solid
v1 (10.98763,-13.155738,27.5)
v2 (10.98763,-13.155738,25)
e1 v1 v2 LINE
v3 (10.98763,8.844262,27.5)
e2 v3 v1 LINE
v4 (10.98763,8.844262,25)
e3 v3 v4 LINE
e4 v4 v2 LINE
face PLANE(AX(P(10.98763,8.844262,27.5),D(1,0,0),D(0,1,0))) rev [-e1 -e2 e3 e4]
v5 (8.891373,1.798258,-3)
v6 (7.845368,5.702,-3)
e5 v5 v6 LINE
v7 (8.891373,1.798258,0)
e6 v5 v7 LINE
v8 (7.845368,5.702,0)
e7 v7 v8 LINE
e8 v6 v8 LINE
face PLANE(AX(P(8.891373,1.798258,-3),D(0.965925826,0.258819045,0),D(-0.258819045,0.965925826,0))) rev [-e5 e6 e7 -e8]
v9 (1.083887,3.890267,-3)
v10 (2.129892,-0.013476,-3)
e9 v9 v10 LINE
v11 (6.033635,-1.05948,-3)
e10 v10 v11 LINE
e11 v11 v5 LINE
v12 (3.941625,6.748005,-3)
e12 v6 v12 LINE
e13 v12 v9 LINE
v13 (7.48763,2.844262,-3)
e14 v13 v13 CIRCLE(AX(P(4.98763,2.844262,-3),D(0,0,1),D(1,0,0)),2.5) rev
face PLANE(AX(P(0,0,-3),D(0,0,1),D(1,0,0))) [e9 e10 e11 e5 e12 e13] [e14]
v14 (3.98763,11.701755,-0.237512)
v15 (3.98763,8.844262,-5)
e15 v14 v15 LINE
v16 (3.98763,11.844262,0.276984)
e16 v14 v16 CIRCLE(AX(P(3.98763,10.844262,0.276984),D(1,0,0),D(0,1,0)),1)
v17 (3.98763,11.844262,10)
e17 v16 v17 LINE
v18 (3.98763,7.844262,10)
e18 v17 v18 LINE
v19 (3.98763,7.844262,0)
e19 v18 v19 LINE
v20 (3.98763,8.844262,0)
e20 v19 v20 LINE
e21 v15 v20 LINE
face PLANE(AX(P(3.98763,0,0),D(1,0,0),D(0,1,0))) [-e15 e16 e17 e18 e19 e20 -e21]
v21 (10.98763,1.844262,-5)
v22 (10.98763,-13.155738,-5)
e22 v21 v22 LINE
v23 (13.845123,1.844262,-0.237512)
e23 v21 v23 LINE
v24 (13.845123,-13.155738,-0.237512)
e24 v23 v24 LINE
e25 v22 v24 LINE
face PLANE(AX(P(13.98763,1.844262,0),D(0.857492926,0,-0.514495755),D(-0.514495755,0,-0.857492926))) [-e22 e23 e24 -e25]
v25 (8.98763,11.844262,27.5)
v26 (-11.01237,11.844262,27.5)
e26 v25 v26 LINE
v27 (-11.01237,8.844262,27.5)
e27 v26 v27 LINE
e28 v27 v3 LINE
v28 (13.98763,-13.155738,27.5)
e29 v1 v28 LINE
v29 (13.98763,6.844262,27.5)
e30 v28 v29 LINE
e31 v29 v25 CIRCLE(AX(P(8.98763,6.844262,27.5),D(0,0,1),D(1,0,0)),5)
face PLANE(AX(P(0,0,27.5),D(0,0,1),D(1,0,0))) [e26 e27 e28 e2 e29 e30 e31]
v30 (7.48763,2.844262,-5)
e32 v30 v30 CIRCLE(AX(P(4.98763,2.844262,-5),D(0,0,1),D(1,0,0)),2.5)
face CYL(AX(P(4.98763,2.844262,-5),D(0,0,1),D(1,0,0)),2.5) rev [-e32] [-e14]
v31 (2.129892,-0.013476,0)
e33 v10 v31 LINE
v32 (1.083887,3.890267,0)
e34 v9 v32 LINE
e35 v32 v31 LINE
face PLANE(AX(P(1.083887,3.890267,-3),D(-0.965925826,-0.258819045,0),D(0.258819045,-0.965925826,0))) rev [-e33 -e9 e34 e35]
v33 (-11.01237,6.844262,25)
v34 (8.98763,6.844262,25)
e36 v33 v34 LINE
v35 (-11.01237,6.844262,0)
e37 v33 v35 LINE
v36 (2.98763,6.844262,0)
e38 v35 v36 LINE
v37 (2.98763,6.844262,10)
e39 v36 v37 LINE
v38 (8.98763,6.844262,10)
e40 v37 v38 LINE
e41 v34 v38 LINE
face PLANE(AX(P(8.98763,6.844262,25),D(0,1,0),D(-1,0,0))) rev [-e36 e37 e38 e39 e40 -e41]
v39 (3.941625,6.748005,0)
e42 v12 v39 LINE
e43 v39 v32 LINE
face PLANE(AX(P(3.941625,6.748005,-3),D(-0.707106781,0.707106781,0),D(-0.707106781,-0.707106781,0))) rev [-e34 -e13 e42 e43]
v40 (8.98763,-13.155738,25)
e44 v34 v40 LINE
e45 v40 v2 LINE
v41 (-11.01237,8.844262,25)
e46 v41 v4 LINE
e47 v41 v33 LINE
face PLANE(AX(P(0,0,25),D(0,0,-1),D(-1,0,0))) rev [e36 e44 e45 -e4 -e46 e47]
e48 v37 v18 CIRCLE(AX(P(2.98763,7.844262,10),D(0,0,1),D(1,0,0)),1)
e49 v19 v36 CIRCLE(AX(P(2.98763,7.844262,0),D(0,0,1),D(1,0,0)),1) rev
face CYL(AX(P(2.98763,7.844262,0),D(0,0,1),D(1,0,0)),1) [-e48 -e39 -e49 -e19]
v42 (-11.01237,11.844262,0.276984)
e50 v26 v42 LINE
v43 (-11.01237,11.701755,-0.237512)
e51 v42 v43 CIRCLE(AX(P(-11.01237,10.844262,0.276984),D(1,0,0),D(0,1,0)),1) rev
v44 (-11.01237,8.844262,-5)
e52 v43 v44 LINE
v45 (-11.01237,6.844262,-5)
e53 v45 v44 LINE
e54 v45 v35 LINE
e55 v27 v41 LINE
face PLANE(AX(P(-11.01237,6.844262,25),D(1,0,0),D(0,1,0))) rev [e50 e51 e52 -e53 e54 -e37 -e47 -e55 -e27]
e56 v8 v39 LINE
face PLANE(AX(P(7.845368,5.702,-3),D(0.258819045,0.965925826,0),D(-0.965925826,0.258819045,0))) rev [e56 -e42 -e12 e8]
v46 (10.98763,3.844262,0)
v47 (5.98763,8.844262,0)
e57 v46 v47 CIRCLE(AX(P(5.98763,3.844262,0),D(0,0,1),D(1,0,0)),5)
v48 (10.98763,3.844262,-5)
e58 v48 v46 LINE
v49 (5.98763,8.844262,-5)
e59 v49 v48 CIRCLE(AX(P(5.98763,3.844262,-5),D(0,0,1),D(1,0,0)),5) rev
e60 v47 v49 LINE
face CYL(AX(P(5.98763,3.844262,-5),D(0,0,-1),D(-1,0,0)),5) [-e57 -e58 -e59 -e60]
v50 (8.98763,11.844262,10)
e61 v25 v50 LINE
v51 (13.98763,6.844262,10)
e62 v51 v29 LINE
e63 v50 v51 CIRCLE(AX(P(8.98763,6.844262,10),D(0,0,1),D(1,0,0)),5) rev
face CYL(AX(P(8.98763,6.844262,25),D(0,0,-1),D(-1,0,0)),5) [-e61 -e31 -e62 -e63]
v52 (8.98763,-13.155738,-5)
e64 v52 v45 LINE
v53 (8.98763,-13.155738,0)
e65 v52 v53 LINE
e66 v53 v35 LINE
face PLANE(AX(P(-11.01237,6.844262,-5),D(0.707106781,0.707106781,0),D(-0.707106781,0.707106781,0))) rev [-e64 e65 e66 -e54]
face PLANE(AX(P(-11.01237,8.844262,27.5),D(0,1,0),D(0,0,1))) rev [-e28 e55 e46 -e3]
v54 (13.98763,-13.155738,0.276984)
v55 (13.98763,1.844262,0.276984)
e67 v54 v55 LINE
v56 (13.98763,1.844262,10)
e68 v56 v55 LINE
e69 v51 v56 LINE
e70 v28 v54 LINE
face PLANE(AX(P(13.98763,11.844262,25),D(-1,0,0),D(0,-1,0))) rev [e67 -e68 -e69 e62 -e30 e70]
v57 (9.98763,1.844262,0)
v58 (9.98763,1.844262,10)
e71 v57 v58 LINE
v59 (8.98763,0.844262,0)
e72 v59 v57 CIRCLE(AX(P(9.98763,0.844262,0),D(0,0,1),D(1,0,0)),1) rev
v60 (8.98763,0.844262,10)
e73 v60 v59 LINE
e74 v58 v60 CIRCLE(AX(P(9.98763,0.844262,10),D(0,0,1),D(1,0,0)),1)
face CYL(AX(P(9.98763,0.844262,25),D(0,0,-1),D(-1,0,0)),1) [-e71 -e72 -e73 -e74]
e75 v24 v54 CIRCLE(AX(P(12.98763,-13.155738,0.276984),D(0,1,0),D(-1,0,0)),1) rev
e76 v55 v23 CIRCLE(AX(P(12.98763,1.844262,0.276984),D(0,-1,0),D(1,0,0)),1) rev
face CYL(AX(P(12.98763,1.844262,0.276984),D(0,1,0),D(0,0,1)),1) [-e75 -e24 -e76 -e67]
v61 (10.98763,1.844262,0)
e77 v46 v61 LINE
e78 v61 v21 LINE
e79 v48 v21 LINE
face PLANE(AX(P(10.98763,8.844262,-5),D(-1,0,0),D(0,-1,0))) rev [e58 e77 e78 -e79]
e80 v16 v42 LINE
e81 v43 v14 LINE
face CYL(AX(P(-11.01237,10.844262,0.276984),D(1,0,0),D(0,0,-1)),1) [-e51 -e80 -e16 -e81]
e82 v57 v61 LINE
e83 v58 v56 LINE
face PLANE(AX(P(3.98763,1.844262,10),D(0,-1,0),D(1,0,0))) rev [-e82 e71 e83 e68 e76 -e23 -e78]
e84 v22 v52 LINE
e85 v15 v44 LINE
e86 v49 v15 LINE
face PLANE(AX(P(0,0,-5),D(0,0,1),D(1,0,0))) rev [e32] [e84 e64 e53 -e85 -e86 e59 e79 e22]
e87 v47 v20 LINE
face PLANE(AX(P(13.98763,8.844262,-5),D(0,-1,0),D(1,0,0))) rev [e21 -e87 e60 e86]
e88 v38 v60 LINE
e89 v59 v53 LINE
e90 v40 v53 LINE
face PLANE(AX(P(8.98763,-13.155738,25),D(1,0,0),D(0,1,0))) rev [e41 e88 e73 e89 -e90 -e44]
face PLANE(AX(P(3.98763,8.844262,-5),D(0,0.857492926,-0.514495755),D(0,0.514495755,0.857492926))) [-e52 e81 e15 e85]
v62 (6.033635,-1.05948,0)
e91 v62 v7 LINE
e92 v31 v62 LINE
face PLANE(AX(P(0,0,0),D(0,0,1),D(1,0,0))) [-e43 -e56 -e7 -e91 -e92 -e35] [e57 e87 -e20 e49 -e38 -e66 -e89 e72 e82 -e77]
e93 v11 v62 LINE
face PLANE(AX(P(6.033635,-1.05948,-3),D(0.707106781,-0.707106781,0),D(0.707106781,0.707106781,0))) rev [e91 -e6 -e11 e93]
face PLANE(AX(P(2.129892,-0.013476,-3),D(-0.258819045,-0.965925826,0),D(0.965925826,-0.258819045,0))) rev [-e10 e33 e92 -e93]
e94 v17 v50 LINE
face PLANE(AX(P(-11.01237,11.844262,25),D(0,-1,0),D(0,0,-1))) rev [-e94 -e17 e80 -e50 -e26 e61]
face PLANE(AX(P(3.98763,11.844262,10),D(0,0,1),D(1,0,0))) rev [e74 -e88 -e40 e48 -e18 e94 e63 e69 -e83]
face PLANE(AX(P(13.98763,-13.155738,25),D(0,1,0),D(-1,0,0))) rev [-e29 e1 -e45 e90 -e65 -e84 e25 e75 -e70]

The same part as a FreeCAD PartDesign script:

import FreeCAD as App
import Part
import Sketcher
from FreeCAD import Vector
Q = App.Units.Quantity


def edges_at(feature, points):
    """Names of the edges that pass closest to the given points."""
    edges = feature.Shape.Edges
    near = lambda p: min(range(len(edges)), key=lambda i: edges[i].distToShape(Part.Vertex(*p))[0])
    return sorted({f"Edge{near(p) + 1}" for p in points})


def add_polygon(sketch, points):
    """Adds a closed chain of lines whose ends are joined by coincident constraints."""
    first, n = sketch.GeometryCount, len(points)
    for a, b in zip(points, points[1:] + points[:1]):
        sketch.addGeometry(Part.LineSegment(App.Vector(*a, 0), App.Vector(*b, 0)), False)
    for i in range(n):
        sketch.addConstraint(Sketcher.Constraint("Coincident", first + i, 2, first + (i + 1) % n, 1))

doc = App.newDocument("Part")
params = doc.addObject("Spreadsheet::Sheet", "Params")
for row, (alias, value) in enumerate([
    ("sketch1_width", "25 mm"),
    ("sketch1_width2", "20 mm"),
    ("pad1_length", "25 mm"),
    ("sketch2_width", "3 mm"),
    ("sketch2_width2", "25 mm"),
    ("pad2_length", "2.5 mm"),
    ("sketch3_width", "25 mm"),
    ("sketch3_width2", "5 mm"),
    ("pad3_length", "5 mm"),
    ("sketch4_width", "10 mm"),
    ("pocket1_length", "10 mm"),
    ("sketch5_width", "3 mm"),
    ("sketch5_height", "5 mm"),
    ("pocket2_length", "25 mm"),
    ("sketch6_width", "3 mm"),
    ("sketch6_height", "5 mm"),
    ("pocket3_length", "22 mm"),
    ("sketch7_width", "3 mm"),
    ("sketch7_height", "5 mm"),
    ("pad4_length", "15 mm"),
    ("sketch8_width", "3 mm"),
    ("sketch8_height", "5 mm"),
    ("pad5_length", "15 mm"),
    ("fillet_radius", "5 mm"),
    ("sketch9_diameter", "5 mm"),
    ("pocket4_length", "2 mm"),
    ("pocket5_length", "3 mm"),
    ("fillet2_radius", "1 mm"),
    ("fillet3_radius", "1 mm"),
], start=1):
    params.set(f"A{row}", alias)
    params.set(f"B{row}", "=" + value)
    params.setAlias(f"B{row}", alias)

body = doc.addObject("PartDesign::Body", "Body")

# Sketch on XY plane
sketch1 = body.newObject("Sketcher::SketchObject", "Sketch")
sketch1.AttachmentSupport = (doc.getObject("XY_Plane"), [""])
sketch1.MapMode = "FlatFace"
add_polygon(sketch1, [(14, 12), (-11, 12), (-11, 7), (9, 7), (9, -13), (14, -13)])  # lines 0-5
sketch1.addConstraint([
    Sketcher.Constraint("Horizontal", 0),
    Sketcher.Constraint("Vertical", 1),
    Sketcher.Constraint("Horizontal", 2),
    Sketcher.Constraint("Vertical", 3),
    Sketcher.Constraint("Horizontal", 4),
    Sketcher.Constraint("Vertical", 5),
    Sketcher.Constraint("Equal", 4, 1),
    Sketcher.Constraint("Equal", 2, 3),
    Sketcher.Constraint("DistanceX", 0, 2, 0, 1, Q("25 mm")),
    Sketcher.Constraint("DistanceX", 2, 1, 2, 2, Q("20 mm")),
    Sketcher.Constraint("DistanceX", 0, 2, -1, 1, Q("11.01237 mm")),
    Sketcher.Constraint("DistanceY", -1, 1, 0, 2, Q("11.844262 mm")),
])
sketch1.setExpression("Constraints[14]", "Params.sketch1_width")
sketch1.setExpression("Constraints[15]", "Params.sketch1_width2")
pad1 = body.newObject("PartDesign::Pad", "Pad")
pad1.Profile = sketch1
pad1.setExpression("Length", "Params.pad1_length")

# Sketch on XY plane
sketch2 = body.newObject("Sketcher::SketchObject", "Sketch001")
sketch2.AttachmentSupport = (doc.getObject("XY_Plane"), [""])
sketch2.MapMode = "FlatFace"
sketch2.AttachmentOffset = App.Placement(Vector(0, 0, 25), App.Rotation())
add_polygon(sketch2, [(11, -13.2), (14, -13.2), (14, 11.8), (-11, 11.8), (-11, 8.8), (11, 8.8)])  # lines 0-5
sketch2.addConstraint([
    Sketcher.Constraint("Horizontal", 0),
    Sketcher.Constraint("Vertical", 1),
    Sketcher.Constraint("Horizontal", 2),
    Sketcher.Constraint("Vertical", 3),
    Sketcher.Constraint("Horizontal", 4),
    Sketcher.Constraint("Vertical", 5),
    Sketcher.Constraint("Equal", 2, 1),
    Sketcher.Constraint("Equal", 0, 3),
    Sketcher.Constraint("DistanceX", 0, 1, 0, 2, Q("3 mm")),
    Sketcher.Constraint("DistanceX", 2, 2, 2, 1, Q("25 mm")),
    Sketcher.Constraint("DistanceX", -1, 1, 0, 2, Q("13.98763 mm")),
    Sketcher.Constraint("DistanceY", 0, 2, -1, 1, Q("13.155738 mm")),
])
sketch2.setExpression("Constraints[14]", "Params.sketch2_width")
sketch2.setExpression("Constraints[15]", "Params.sketch2_width2")
pad2 = body.newObject("PartDesign::Pad", "Pad001")
pad2.Profile = sketch2
pad2.setExpression("Length", "Params.pad2_length")

# Sketch on XY plane
sketch3 = body.newObject("Sketcher::SketchObject", "Sketch002")
sketch3.AttachmentSupport = (doc.getObject("XY_Plane"), [""])
sketch3.MapMode = "FlatFace"
add_polygon(sketch3, [(9, -13), (-11, 7), (-11, 12), (14, 12), (14, -13)])  # lines 0-4
sketch3.addConstraint([
    Sketcher.Constraint("Vertical", 1),
    Sketcher.Constraint("Horizontal", 2),
    Sketcher.Constraint("Vertical", 3),
    Sketcher.Constraint("Horizontal", 4),
    Sketcher.Constraint("Equal", 4, 1),
    Sketcher.Constraint("Equal", 2, 3),
    Sketcher.Constraint("DistanceX", 2, 1, 2, 2, Q("25 mm")),
    Sketcher.Constraint("DistanceX", 4, 2, 4, 1, Q("5 mm")),
    Sketcher.Constraint("DistanceX", 0, 2, -1, 1, Q("11.01237 mm")),
    Sketcher.Constraint("DistanceY", -1, 1, 0, 2, Q("6.844262 mm")),
])
sketch3.setExpression("Constraints[11]", "Params.sketch3_width")
sketch3.setExpression("Constraints[12]", "Params.sketch3_width2")
pad3 = body.newObject("PartDesign::Pad", "Pad002")
pad3.Profile = sketch3
pad3.setExpression("Length", "Params.pad3_length")
pad3.Reversed = True

# Sketch on YZ plane
sketch4 = body.newObject("Sketcher::SketchObject", "Sketch003")
sketch4.AttachmentSupport = (doc.getObject("YZ_Plane"), [""])
sketch4.MapMode = "FlatFace"
sketch4.AttachmentOffset = App.Placement(Vector(0, 0, 13.98763), App.Rotation())
add_polygon(sketch4, [(12, 10), (2, 10), (2, 0), (12, 0)])  # lines 0-3
sketch4.addConstraint([
    Sketcher.Constraint("Horizontal", 0),
    Sketcher.Constraint("Vertical", 1),
    Sketcher.Constraint("Horizontal", 2),
    Sketcher.Constraint("Vertical", 3),
    Sketcher.Constraint("PointOnObject", 1, 2, -1),
    Sketcher.Constraint("Equal", 2, 1),
    Sketcher.Constraint("DistanceX", 0, 2, 0, 1, Q("10 mm")),
    Sketcher.Constraint("DistanceX", -1, 1, 0, 2, Q("1.844262 mm")),
])
sketch4.setExpression("Constraints[10]", "Params.sketch4_width")
pocket1 = body.newObject("PartDesign::Pocket", "Pocket")
pocket1.Profile = sketch4
pocket1.setExpression("Length", "Params.pocket1_length")

# Sketch on YZ plane
sketch5 = body.newObject("Sketcher::SketchObject", "Sketch004")
sketch5.AttachmentSupport = (doc.getObject("YZ_Plane"), [""])
sketch5.MapMode = "FlatFace"
sketch5.AttachmentOffset = App.Placement(Vector(0, 0, 13.98763), App.Rotation())
add_polygon(sketch5, [(11.8, -5), (8.8, -5), (8.8, 0), (11.8, 0)])  # lines 0-3
sketch5.addConstraint([
    Sketcher.Constraint("Horizontal", 0),
    Sketcher.Constraint("Vertical", 1),
    Sketcher.Constraint("Horizontal", 2),
    Sketcher.Constraint("Vertical", 3),
    Sketcher.Constraint("PointOnObject", 1, 2, -1),
    Sketcher.Constraint("DistanceX", 0, 2, 0, 1, Q("3 mm")),
    Sketcher.Constraint("DistanceY", 1, 1, 1, 2, Q("5 mm")),
    Sketcher.Constraint("DistanceX", -1, 1, 0, 2, Q("8.844262 mm")),
])
sketch5.setExpression("Constraints[9]", "Params.sketch5_width")
sketch5.setExpression("Constraints[10]", "Params.sketch5_height")
pocket2 = body.newObject("PartDesign::Pocket", "Pocket001")
pocket2.Profile = sketch5
pocket2.setExpression("Length", "Params.pocket2_length")

# Sketch on XZ plane
sketch6 = body.newObject("Sketcher::SketchObject", "Sketch005")
sketch6.AttachmentSupport = (doc.getObject("XZ_Plane"), [""])
sketch6.MapMode = "FlatFace"
sketch6.AttachmentOffset = App.Placement(Vector(0, 0, -8.844262), App.Rotation())
add_polygon(sketch6, [(14, -5), (14, 0), (11, 0), (11, -5)])  # lines 0-3
sketch6.addConstraint([
    Sketcher.Constraint("Vertical", 0),
    Sketcher.Constraint("Horizontal", 1),
    Sketcher.Constraint("Vertical", 2),
    Sketcher.Constraint("Horizontal", 3),
    Sketcher.Constraint("PointOnObject", 0, 2, -1),
    Sketcher.Constraint("DistanceX", 1, 2, 1, 1, Q("3 mm")),
    Sketcher.Constraint("DistanceY", 0, 1, 0, 2, Q("5 mm")),
    Sketcher.Constraint("DistanceX", -1, 1, 0, 2, Q("13.98763 mm")),
])
sketch6.setExpression("Constraints[9]", "Params.sketch6_width")
sketch6.setExpression("Constraints[10]", "Params.sketch6_height")
pocket3 = body.newObject("PartDesign::Pocket", "Pocket002")
pocket3.Profile = sketch6
pocket3.setExpression("Length", "Params.pocket3_length")
pocket3.Reversed = True

# Sketch on XZ plane
sketch7 = body.newObject("Sketcher::SketchObject", "Sketch006")
sketch7.AttachmentSupport = (doc.getObject("XZ_Plane"), [""])
sketch7.MapMode = "FlatFace"
sketch7.AttachmentOffset = App.Placement(Vector(0, 0, -1.844262), App.Rotation())
add_polygon(sketch7, [(14, 0), (11, 0), (11, -5)])  # lines 0-2
sketch7.addConstraint([
    Sketcher.Constraint("Horizontal", 0),
    Sketcher.Constraint("Vertical", 1),
    Sketcher.Constraint("PointOnObject", 0, 2, -1),
    Sketcher.Constraint("DistanceX", 0, 2, 0, 1, Q("3 mm")),
    Sketcher.Constraint("DistanceY", 1, 2, 1, 1, Q("5 mm")),
    Sketcher.Constraint("DistanceX", -1, 1, 0, 2, Q("10.98763 mm")),
])
sketch7.setExpression("Constraints[6]", "Params.sketch7_width")
sketch7.setExpression("Constraints[7]", "Params.sketch7_height")
pad4 = body.newObject("PartDesign::Pad", "Pad003")
pad4.Profile = sketch7
pad4.setExpression("Length", "Params.pad4_length")

# Sketch on YZ plane
sketch8 = body.newObject("Sketcher::SketchObject", "Sketch007")
sketch8.AttachmentSupport = (doc.getObject("YZ_Plane"), [""])
sketch8.MapMode = "FlatFace"
sketch8.AttachmentOffset = App.Placement(Vector(0, 0, -11.01237), App.Rotation())
add_polygon(sketch8, [(11.8, 0), (8.8, -5), (8.8, 0)])  # lines 0-2
sketch8.addConstraint([
    Sketcher.Constraint("Vertical", 1),
    Sketcher.Constraint("Horizontal", 2),
    Sketcher.Constraint("PointOnObject", 1, 2, -1),
    Sketcher.Constraint("DistanceX", 2, 1, 2, 2, Q("3 mm")),
    Sketcher.Constraint("DistanceY", 1, 1, 1, 2, Q("5 mm")),
    Sketcher.Constraint("DistanceX", -1, 1, 0, 2, Q("8.844262 mm")),
])
sketch8.setExpression("Constraints[6]", "Params.sketch8_width")
sketch8.setExpression("Constraints[7]", "Params.sketch8_height")
pad5 = body.newObject("PartDesign::Pad", "Pad004")
pad5.Profile = sketch8
pad5.setExpression("Length", "Params.pad5_length")
doc.recompute()

fillet = body.newObject("PartDesign::Fillet", "Fillet")
fillet.Base = (pad5, edges_at(pad5, [(13.988, 11.844, 18.75), (10.988, 8.844, -2.5)]))
fillet.setExpression("Radius", "Params.fillet_radius")

# Sketch on XY plane
sketch9 = body.newObject("Sketcher::SketchObject", "Sketch008")
sketch9.AttachmentSupport = (doc.getObject("XY_Plane"), [""])
sketch9.MapMode = "FlatFace"
sketch9.AttachmentOffset = App.Placement(Vector(0, 0, -3), App.Rotation())
sketch9.addGeometry(Part.Circle(Vector(5, 2.8, 0), Vector(0, 0, 1), 2.5), False)
sketch9.addConstraint([
    Sketcher.Constraint("Diameter", 0, Q("5 mm")),
    Sketcher.Constraint("DistanceX", -1, 1, 0, 3, Q("4.98763 mm")),
    Sketcher.Constraint("DistanceY", -1, 1, 0, 3, Q("2.844262 mm")),
])
sketch9.setExpression("Constraints[0]", "Params.sketch9_diameter")
pocket4 = body.newObject("PartDesign::Pocket", "Pocket003")
pocket4.Profile = sketch9
pocket4.setExpression("Length", "Params.pocket4_length")

# Sketch on XY plane
sketch10 = body.newObject("Sketcher::SketchObject", "Sketch009")
sketch10.AttachmentSupport = (doc.getObject("XY_Plane"), [""])
sketch10.MapMode = "FlatFace"
add_polygon(sketch10, [(2.1, 0), (6, -1.1), (8.9, 1.8), (7.8, 5.7), (3.9, 6.7), (1.1, 3.9)])  # lines 0-5
sketch10.addConstraint([
    Sketcher.Constraint("Parallel", 0, 3),
    Sketcher.Constraint("Parallel", 1, 4),
    Sketcher.Constraint("Parallel", 2, 5),
    Sketcher.Constraint("Equal", 0, 1),
    Sketcher.Constraint("Equal", 1, 2),
    Sketcher.Constraint("Equal", 2, 3),
    Sketcher.Constraint("Angle", 0, Q("-15 deg")),
    Sketcher.Constraint("Angle", 1, Q("45 deg")),
    Sketcher.Constraint("Angle", 2, Q("105 deg")),
    Sketcher.Constraint("DistanceY", -1, 1, 2, 2, Q("5.702 mm")),
    Sketcher.Constraint("Distance", 0, Q("4.041452 mm")),
    Sketcher.Constraint("DistanceX", -1, 1, 5, 2, Q("2.129892 mm")),
])
pocket5 = body.newObject("PartDesign::Pocket", "Pocket004")
pocket5.Profile = sketch10
pocket5.setExpression("Length", "Params.pocket5_length")
doc.recompute()

fillet2 = body.newObject("PartDesign::Fillet", "Fillet001")
fillet2.Base = (pocket5, edges_at(pocket5, [(8.988, 1.844, 5), (3.988, 6.844, 5)]))
fillet2.setExpression("Radius", "Params.fillet2_radius")
doc.recompute()

fillet3 = body.newObject("PartDesign::Fillet", "Fillet002")
fillet3.Base = (fillet2, edges_at(fillet2, [(-3.512, 11.844, 0), (13.988, -5.656, 0)]))
fillet3.setExpression("Radius", "Params.fillet3_radius")

doc.recompute()
